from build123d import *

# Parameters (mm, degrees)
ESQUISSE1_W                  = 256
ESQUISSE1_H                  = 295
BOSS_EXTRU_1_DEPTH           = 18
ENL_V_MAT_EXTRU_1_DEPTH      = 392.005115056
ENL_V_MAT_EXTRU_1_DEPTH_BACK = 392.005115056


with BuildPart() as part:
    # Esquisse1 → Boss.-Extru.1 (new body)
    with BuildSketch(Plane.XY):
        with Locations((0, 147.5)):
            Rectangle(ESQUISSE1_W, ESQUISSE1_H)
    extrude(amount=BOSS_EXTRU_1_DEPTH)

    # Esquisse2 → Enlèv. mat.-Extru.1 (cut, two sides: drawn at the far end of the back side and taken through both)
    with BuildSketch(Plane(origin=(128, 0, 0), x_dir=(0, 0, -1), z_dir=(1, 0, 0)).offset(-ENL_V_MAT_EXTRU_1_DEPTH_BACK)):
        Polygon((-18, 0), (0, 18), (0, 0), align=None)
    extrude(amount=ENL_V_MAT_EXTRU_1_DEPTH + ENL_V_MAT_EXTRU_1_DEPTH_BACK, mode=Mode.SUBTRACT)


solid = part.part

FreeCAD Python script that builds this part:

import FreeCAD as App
import Part
import Sketcher
from FreeCAD import Vector


def add_polygon(sketch, points):
    """Adds a closed chain of lines whose ends are joined by coincident constraints."""
    first, n = sketch.GeometryCount, len(points)
    for a, b in zip(points, points[1:] + points[:1]):
        sketch.addGeometry(Part.LineSegment(App.Vector(*a, 0), App.Vector(*b, 0)), False)
    for i in range(n):
        sketch.addConstraint(Sketcher.Constraint("Coincident", first + i, 2, first + (i + 1) % n, 1))

doc = App.newDocument("Part")
params = doc.addObject("Spreadsheet::Sheet", "Params")
for row, (alias, value) in enumerate([
    ("sketch1_width", "256 mm"),
    ("sketch1_height", "295 mm"),
    ("pad1_length", "18 mm"),
    ("sketch2_width", "18 mm"),
], start=1):
    params.set(f"A{row}", alias)
    params.set(f"B{row}", "=" + value)
    params.setAlias(f"B{row}", alias)

body = doc.addObject("PartDesign::Body", "Body")

# Sketch on XY plane
sketch1 = body.newObject("Sketcher::SketchObject", "Sketch")
sketch1.AttachmentSupport = (doc.getObject("XY_Plane"), [""])
sketch1.MapMode = "FlatFace"
add_polygon(sketch1, [(-128, 295), (-128, 0), (128, 0), (128, 295)])  # lines 0-3
sketch1.addConstraint(Sketcher.Constraint("Vertical", 0))
sketch1.addConstraint(Sketcher.Constraint("Horizontal", 1))
sketch1.addConstraint(Sketcher.Constraint("Vertical", 2))
sketch1.addConstraint(Sketcher.Constraint("Horizontal", 3))
sketch1.addConstraint(Sketcher.Constraint("Symmetric", 0, 2, 1, 2, -1, 1))
sketch1.addConstraint(Sketcher.Constraint("DistanceX", 1, 1, 1, 2, 256.0))
sketch1.addConstraint(Sketcher.Constraint("DistanceY", 0, 2, 0, 1, 295.0))
sketch1.setExpression("Constraints[9]", "Params.sketch1_width")
sketch1.setExpression("Constraints[10]", "Params.sketch1_height")
pad1 = body.newObject("PartDesign::Pad", "Pad")
pad1.Profile = sketch1
pad1.setExpression("Length", "Params.pad1_length")

# Sketch on YZ plane
sketch2 = body.newObject("Sketcher::SketchObject", "Sketch001")
sketch2.AttachmentSupport = (doc.getObject("YZ_Plane"), [""])
sketch2.MapMode = "FlatFace"
sketch2.AttachmentOffset = App.Placement(Vector(0, 0, 128), App.Rotation())
add_polygon(sketch2, [(18, 0), (0, 18), (0, 0)])  # lines 0-2
sketch2.addConstraint(Sketcher.Constraint("Vertical", 1))
sketch2.addConstraint(Sketcher.Constraint("Horizontal", 2))
sketch2.addConstraint(Sketcher.Constraint("Coincident", 1, 2, -1, 1))
sketch2.addConstraint(Sketcher.Constraint("Equal", 2, 1))
sketch2.addConstraint(Sketcher.Constraint("DistanceX", 2, 1, 2, 2, 18.0))
sketch2.setExpression("Constraints[7]", "Params.sketch2_width")
pocket1 = body.newObject("PartDesign::Pocket", "Pocket")
pocket1.Profile = sketch2
pocket1.Type = "ThroughAll"
pocket1.Midplane = True

doc.recompute()
